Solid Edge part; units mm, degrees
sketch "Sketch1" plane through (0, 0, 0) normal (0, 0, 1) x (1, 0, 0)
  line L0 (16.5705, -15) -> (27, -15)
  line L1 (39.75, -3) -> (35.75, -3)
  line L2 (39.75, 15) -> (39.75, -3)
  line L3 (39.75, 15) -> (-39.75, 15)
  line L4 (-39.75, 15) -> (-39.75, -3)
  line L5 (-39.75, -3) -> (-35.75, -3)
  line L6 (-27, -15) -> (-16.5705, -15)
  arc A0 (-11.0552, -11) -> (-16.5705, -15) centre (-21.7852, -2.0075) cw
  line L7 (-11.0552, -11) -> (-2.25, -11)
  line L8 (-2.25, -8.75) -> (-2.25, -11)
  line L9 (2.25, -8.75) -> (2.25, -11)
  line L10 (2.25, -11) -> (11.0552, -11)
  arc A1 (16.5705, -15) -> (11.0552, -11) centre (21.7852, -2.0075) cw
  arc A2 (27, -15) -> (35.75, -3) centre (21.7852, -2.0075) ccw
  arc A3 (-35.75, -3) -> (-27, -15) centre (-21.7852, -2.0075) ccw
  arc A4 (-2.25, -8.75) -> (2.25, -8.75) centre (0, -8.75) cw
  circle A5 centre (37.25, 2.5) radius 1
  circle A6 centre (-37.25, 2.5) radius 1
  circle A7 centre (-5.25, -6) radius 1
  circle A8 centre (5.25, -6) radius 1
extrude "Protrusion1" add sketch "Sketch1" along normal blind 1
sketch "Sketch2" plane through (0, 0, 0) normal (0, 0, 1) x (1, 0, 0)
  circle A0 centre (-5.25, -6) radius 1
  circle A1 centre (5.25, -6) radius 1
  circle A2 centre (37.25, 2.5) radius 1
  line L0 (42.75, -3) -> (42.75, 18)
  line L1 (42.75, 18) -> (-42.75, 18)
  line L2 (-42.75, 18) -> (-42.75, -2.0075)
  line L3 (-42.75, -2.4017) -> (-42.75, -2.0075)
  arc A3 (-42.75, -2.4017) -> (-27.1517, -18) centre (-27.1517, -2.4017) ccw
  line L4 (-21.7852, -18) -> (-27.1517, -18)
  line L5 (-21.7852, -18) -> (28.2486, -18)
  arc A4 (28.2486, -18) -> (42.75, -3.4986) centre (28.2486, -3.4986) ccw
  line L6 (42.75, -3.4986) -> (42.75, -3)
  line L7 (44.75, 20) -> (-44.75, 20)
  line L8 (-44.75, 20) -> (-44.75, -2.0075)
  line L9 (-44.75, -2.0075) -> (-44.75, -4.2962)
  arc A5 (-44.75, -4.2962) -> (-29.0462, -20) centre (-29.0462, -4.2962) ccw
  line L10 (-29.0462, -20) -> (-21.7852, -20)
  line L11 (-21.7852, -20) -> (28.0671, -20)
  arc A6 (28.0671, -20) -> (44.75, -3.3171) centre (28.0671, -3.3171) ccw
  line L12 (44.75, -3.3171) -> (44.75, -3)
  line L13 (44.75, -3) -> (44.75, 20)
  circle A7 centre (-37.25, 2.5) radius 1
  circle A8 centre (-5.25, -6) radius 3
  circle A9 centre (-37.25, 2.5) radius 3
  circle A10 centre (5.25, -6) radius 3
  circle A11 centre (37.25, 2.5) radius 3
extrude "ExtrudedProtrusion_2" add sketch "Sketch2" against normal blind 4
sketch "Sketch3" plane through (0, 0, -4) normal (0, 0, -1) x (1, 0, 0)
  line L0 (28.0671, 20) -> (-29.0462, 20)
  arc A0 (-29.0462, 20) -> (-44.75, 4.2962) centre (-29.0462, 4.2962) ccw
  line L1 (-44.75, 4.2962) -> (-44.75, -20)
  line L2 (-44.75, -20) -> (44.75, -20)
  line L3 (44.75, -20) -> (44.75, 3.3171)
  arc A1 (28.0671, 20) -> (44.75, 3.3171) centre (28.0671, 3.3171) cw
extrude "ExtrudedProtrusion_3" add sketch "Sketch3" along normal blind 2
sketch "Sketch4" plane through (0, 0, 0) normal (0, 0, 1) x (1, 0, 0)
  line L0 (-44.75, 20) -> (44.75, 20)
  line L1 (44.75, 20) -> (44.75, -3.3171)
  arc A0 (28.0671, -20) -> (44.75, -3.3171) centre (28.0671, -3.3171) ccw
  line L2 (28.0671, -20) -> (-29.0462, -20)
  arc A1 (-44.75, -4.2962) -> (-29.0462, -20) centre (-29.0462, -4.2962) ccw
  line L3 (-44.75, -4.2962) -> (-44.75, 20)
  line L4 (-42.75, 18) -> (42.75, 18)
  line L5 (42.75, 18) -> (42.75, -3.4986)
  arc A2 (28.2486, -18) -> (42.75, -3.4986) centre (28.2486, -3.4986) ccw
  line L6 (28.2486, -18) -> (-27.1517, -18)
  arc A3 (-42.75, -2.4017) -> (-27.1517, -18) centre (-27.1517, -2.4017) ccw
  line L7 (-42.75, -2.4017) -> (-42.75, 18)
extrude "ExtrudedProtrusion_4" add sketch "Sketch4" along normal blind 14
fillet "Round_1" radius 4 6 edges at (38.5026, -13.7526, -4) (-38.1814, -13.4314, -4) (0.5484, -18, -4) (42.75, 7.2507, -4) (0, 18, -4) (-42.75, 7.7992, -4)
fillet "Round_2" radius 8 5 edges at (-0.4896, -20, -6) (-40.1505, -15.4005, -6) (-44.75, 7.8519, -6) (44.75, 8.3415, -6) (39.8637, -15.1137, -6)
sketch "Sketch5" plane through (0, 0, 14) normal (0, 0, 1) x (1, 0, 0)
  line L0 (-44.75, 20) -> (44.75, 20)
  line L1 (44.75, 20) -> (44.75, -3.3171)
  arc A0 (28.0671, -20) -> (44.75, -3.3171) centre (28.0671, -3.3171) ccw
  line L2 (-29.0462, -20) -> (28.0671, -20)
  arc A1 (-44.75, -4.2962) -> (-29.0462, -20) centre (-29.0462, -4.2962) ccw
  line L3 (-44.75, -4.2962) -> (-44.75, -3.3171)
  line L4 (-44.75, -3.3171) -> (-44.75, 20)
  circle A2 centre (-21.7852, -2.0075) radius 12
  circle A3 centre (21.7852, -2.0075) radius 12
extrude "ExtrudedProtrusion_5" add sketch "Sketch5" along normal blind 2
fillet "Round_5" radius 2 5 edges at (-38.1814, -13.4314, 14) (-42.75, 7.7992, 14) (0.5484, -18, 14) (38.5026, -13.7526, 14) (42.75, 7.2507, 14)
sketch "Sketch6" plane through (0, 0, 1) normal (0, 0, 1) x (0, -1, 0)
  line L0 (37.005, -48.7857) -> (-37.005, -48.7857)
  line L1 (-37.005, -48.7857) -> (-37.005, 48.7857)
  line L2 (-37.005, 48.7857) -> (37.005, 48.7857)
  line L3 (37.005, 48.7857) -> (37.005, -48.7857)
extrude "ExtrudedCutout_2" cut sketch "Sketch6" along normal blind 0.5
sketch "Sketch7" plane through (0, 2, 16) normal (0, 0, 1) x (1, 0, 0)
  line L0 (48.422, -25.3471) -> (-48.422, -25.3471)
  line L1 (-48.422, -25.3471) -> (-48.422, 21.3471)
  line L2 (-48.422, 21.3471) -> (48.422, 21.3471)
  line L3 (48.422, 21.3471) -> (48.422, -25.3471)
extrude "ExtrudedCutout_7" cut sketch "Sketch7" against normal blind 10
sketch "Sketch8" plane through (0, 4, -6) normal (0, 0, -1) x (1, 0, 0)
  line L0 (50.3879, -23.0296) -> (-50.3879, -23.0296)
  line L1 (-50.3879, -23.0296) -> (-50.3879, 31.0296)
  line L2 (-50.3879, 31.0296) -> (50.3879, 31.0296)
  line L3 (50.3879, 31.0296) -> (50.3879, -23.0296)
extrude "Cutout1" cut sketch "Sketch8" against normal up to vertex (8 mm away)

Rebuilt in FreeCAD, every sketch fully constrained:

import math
import FreeCAD as App
import Part
import Sketcher
Q = App.Units.Quantity


def edges_at(feature, points):
    """Names of the edges that pass closest to the given points."""
    edges = feature.Shape.Edges
    near = lambda p: min(range(len(edges)), key=lambda i: edges[i].distToShape(Part.Vertex(*p))[0])
    return sorted({f"Edge{near(p) + 1}" for p in points})

doc = App.newDocument("Part")
body = doc.addObject("PartDesign::Body", "Body")
body.AllowCompound = True

# Sketch on XY plane
sketch1 = body.newObject("Sketcher::SketchObject", "Sketch")
sketch1.AttachmentSupport = (doc.getObject("XY_Plane"), [""])
sketch1.MapMode = "FlatFace"
sketch1.addGeometry(Part.ArcOfCircle(Part.Circle(App.Vector(21.7852, -2.0075, 0), App.Vector(0, 0, 1), 13.999934), math.radians(-140.034608), math.radians(-111.868667)), False)
sketch1.addGeometry(Part.LineSegment(App.Vector(16.5705, -15, 0), App.Vector(27, -15, 0)), False)
sketch1.addGeometry(Part.ArcOfCircle(Part.Circle(App.Vector(21.7852, -2.0075, 0), App.Vector(0, 0, 1), 13.999971), math.radians(-68.130953), math.radians(-4.065264)), False)
sketch1.addGeometry(Part.LineSegment(App.Vector(35.75, -3, 0), App.Vector(39.75, -3, 0)), False)
sketch1.addGeometry(Part.LineSegment(App.Vector(39.75, -3, 0), App.Vector(39.75, 15, 0)), False)
sketch1.addGeometry(Part.LineSegment(App.Vector(39.75, 15, 0), App.Vector(-39.75, 15, 0)), False)
sketch1.addGeometry(Part.LineSegment(App.Vector(-39.75, 15, 0), App.Vector(-39.75, -3, 0)), False)
sketch1.addGeometry(Part.LineSegment(App.Vector(-39.75, -3, 0), App.Vector(-35.75, -3, 0)), False)
sketch1.addGeometry(Part.ArcOfCircle(Part.Circle(App.Vector(-21.7852, -2.0075, 0), App.Vector(0, 0, 1), 13.999927), math.radians(-175.934736), math.radians(-111.869047)), False)
sketch1.addGeometry(Part.LineSegment(App.Vector(-27, -15, 0), App.Vector(-16.5705, -15, 0)), False)
sketch1.addGeometry(Part.ArcOfCircle(Part.Circle(App.Vector(-21.7852, -2.0075, 0), App.Vector(0, 0, 1), 14.000025), math.radians(-68.131333), math.radians(-39.965392)), False)
sketch1.addGeometry(Part.LineSegment(App.Vector(-11.0552, -11, 0), App.Vector(-2.25, -11, 0)), False)
sketch1.addGeometry(Part.LineSegment(App.Vector(-2.25, -11, 0), App.Vector(-2.25, -8.75, 0)), False)
sketch1.addGeometry(Part.ArcOfCircle(Part.Circle(App.Vector(0, -8.75, 0), App.Vector(0, 0, 1), 2.25), math.radians(0), math.radians(180)), False)
sketch1.addGeometry(Part.LineSegment(App.Vector(2.25, -8.75, 0), App.Vector(2.25, -11, 0)), False)
sketch1.addGeometry(Part.LineSegment(App.Vector(2.25, -11, 0), App.Vector(11.0552, -11, 0)), False)
sketch1.addGeometry(Part.Circle(App.Vector(-5.25, -6, 0), App.Vector(0, 0, 1), 1), False)
sketch1.addGeometry(Part.Circle(App.Vector(5.25, -6, 0), App.Vector(0, 0, 1), 1), False)
sketch1.addGeometry(Part.Circle(App.Vector(-37.25, 2.5, 0), App.Vector(0, 0, 1), 1), False)
sketch1.addGeometry(Part.Circle(App.Vector(37.25, 2.5, 0), App.Vector(0, 0, 1), 1), False)
sketch1.addConstraint(Sketcher.Constraint("Coincident", 0, 2, 1, 1))
sketch1.addConstraint(Sketcher.Constraint("Coincident", 1, 2, 2, 1))
sketch1.addConstraint(Sketcher.Constraint("Coincident", 2, 2, 3, 1))
sketch1.addConstraint(Sketcher.Constraint("Coincident", 3, 2, 4, 1))
sketch1.addConstraint(Sketcher.Constraint("Coincident", 4, 2, 5, 1))
sketch1.addConstraint(Sketcher.Constraint("Coincident", 5, 2, 6, 1))
sketch1.addConstraint(Sketcher.Constraint("Coincident", 6, 2, 7, 1))
sketch1.addConstraint(Sketcher.Constraint("Coincident", 7, 2, 8, 1))
sketch1.addConstraint(Sketcher.Constraint("Coincident", 8, 2, 9, 1))
sketch1.addConstraint(Sketcher.Constraint("Coincident", 9, 2, 10, 1))
sketch1.addConstraint(Sketcher.Constraint("Coincident", 10, 2, 11, 1))
sketch1.addConstraint(Sketcher.Constraint("Coincident", 11, 2, 12, 1))
sketch1.addConstraint(Sketcher.Constraint("Tangent", 12, 2, 13, 2))
sketch1.addConstraint(Sketcher.Constraint("Tangent", 13, 1, 14, 1))
sketch1.addConstraint(Sketcher.Constraint("Coincident", 14, 2, 15, 1))
sketch1.addConstraint(Sketcher.Constraint("Coincident", 15, 2, 0, 1))
sketch1.addConstraint(Sketcher.Constraint("Horizontal", 1))
sketch1.addConstraint(Sketcher.Constraint("Horizontal", 3))
sketch1.addConstraint(Sketcher.Constraint("Vertical", 4))
sketch1.addConstraint(Sketcher.Constraint("Horizontal", 5))
sketch1.addConstraint(Sketcher.Constraint("Vertical", 6))
sketch1.addConstraint(Sketcher.Constraint("Horizontal", 7))
sketch1.addConstraint(Sketcher.Constraint("Horizontal", 9))
sketch1.addConstraint(Sketcher.Constraint("Horizontal", 11))
sketch1.addConstraint(Sketcher.Constraint("Vertical", 12))
sketch1.addConstraint(Sketcher.Constraint("Vertical", 14))
sketch1.addConstraint(Sketcher.Constraint("Horizontal", 15))
sketch1.addConstraint(Sketcher.Constraint("Coincident", 2, 3, 0, 3))
sketch1.addConstraint(Sketcher.Constraint("Coincident", 10, 3, 8, 3))
sketch1.addConstraint(Sketcher.Constraint("Equal", 0, 2))
sketch1.addConstraint(Sketcher.Constraint("Equal", 2, 8))
sketch1.addConstraint(Sketcher.Constraint("Equal", 8, 10))
sketch1.addConstraint(Sketcher.Constraint("Equal", 16, 17))
sketch1.addConstraint(Sketcher.Constraint("Equal", 17, 18))
sketch1.addConstraint(Sketcher.Constraint("Equal", 18, 19))
sketch1.addConstraint(Sketcher.Constraint("Symmetric", 0, 3, 8, 3, -2))
sketch1.addConstraint(Sketcher.Constraint("Symmetric", 16, 3, 17, 3, -2))
sketch1.addConstraint(Sketcher.Constraint("Symmetric", 18, 3, 19, 3, -2))
sketch1.addConstraint(Sketcher.Constraint("Symmetric", 3, 2, 6, 2, -2))
sketch1.addConstraint(Sketcher.Constraint("Symmetric", 11, 2, 14, 2, -2))
sketch1.addConstraint(Sketcher.Constraint("Horizontal", 1, 2, 8, 2))
sketch1.addConstraint(Sketcher.Constraint("Diameter", 16, Q("2 mm")))
sketch1.addConstraint(Sketcher.Constraint("Radius", 0, Q("14 mm")))
sketch1.addConstraint(Sketcher.Constraint("DistanceX", 3, 1, 3, 2, Q("4 mm")))
sketch1.addConstraint(Sketcher.Constraint("DistanceY", 4, 1, 4, 2, Q("18 mm")))
sketch1.addConstraint(Sketcher.Constraint("Radius", 13, Q("2.25 mm")))
sketch1.addConstraint(Sketcher.Constraint("DistanceX", 5, 2, 5, 1, Q("79.5 mm")))
sketch1.addConstraint(Sketcher.Constraint("DistanceY", 16, 3, -1, 1, Q("6 mm")))
sketch1.addConstraint(Sketcher.Constraint("DistanceY", 0, 2, -1, 1, Q("15 mm")))
sketch1.addConstraint(Sketcher.Constraint("DistanceX", -1, 1, 1, 2, Q("27 mm")))
sketch1.addConstraint(Sketcher.Constraint("DistanceY", 2, 2, -1, 1, Q("3 mm")))
sketch1.addConstraint(Sketcher.Constraint("DistanceY", 10, 2, -1, 1, Q("11 mm")))
sketch1.addConstraint(Sketcher.Constraint("DistanceX", 18, 3, 16, 3, Q("32 mm")))
sketch1.addConstraint(Sketcher.Constraint("DistanceX", 16, 3, 11, 2, Q("3 mm")))
sketch1.addConstraint(Sketcher.Constraint("DistanceY", 12, 1, 12, 2, Q("2.25 mm")))
sketch1.addConstraint(Sketcher.Constraint("DistanceY", -1, 1, 18, 3, Q("2.5 mm")))
pad1 = body.newObject("PartDesign::Pad", "Pad")
pad1.Profile = sketch1
pad1.Length = 1

# Sketch on XY plane
sketch2 = body.newObject("Sketcher::SketchObject", "Sketch001")
sketch2.AttachmentSupport = (doc.getObject("XY_Plane"), [""])
sketch2.MapMode = "FlatFace"
sketch2.addGeometry(Part.LineSegment(App.Vector(44.75, -3.3171, 0), App.Vector(44.75, 20, 0)), False)
sketch2.addGeometry(Part.LineSegment(App.Vector(44.75, 20, 0), App.Vector(-44.75, 20, 0)), False)
sketch2.addGeometry(Part.LineSegment(App.Vector(-44.75, 20, 0), App.Vector(-44.75, -4.2962, 0)), False)
sketch2.addGeometry(Part.ArcOfCircle(Part.Circle(App.Vector(-29.0462, -4.2962, 0), App.Vector(0, 0, 1), 15.7038), math.radians(180), math.radians(270)), False)
sketch2.addGeometry(Part.LineSegment(App.Vector(-29.0462, -20, 0), App.Vector(28.0671, -20, 0)), False)
sketch2.addGeometry(Part.ArcOfCircle(Part.Circle(App.Vector(28.0671, -3.3171, 0), App.Vector(0, 0, 1), 16.6829), math.radians(-90), math.radians(0)), False)
sketch2.addGeometry(Part.LineSegment(App.Vector(42.75, 18, 0), App.Vector(42.75, -3.4986, 0)), False)
sketch2.addGeometry(Part.ArcOfCircle(Part.Circle(App.Vector(28.2486, -3.4986, 0), App.Vector(0, 0, 1), 14.5014), math.radians(-90), math.radians(0)), False)
sketch2.addGeometry(Part.LineSegment(App.Vector(28.2486, -18, 0), App.Vector(-27.1517, -18, 0)), False)
sketch2.addGeometry(Part.ArcOfCircle(Part.Circle(App.Vector(-27.1517, -2.4017, 0), App.Vector(0, 0, 1), 15.5983), math.radians(180), math.radians(270)), False)
sketch2.addGeometry(Part.LineSegment(App.Vector(-42.75, -2.4017, 0), App.Vector(-42.75, 18, 0)), False)
sketch2.addGeometry(Part.LineSegment(App.Vector(-42.75, 18, 0), App.Vector(42.75, 18, 0)), False)
sketch2.addGeometry(Part.Circle(App.Vector(-5.25, -6, 0), App.Vector(0, 0, 1), 3), False)
sketch2.addGeometry(Part.Circle(App.Vector(-5.25, -6, 0), App.Vector(0, 0, 1), 1), False)
sketch2.addGeometry(Part.Circle(App.Vector(-37.25, 2.5, 0), App.Vector(0, 0, 1), 3), False)
sketch2.addGeometry(Part.Circle(App.Vector(-37.25, 2.5, 0), App.Vector(0, 0, 1), 1), False)
sketch2.addGeometry(Part.Circle(App.Vector(5.25, -6, 0), App.Vector(0, 0, 1), 3), False)
sketch2.addGeometry(Part.Circle(App.Vector(5.25, -6, 0), App.Vector(0, 0, 1), 1), False)
sketch2.addGeometry(Part.Circle(App.Vector(37.25, 2.5, 0), App.Vector(0, 0, 1), 3), False)
sketch2.addGeometry(Part.Circle(App.Vector(37.25, 2.5, 0), App.Vector(0, 0, 1), 1), False)
sketch2.addConstraint(Sketcher.Constraint("Coincident", 0, 2, 1, 1))
sketch2.addConstraint(Sketcher.Constraint("Coincident", 1, 2, 2, 1))
sketch2.addConstraint(Sketcher.Constraint("Tangent", 2, 2, 3, 1))
sketch2.addConstraint(Sketcher.Constraint("Tangent", 3, 2, 4, 1))
sketch2.addConstraint(Sketcher.Constraint("Tangent", 4, 2, 5, 1))
sketch2.addConstraint(Sketcher.Constraint("Tangent", 5, 2, 0, 1))
sketch2.addConstraint(Sketcher.Constraint("Tangent", 6, 2, 7, 2))
sketch2.addConstraint(Sketcher.Constraint("Tangent", 7, 1, 8, 1))
sketch2.addConstraint(Sketcher.Constraint("Tangent", 8, 2, 9, 2))
sketch2.addConstraint(Sketcher.Constraint("Tangent", 9, 1, 10, 1))
sketch2.addConstraint(Sketcher.Constraint("Coincident", 10, 2, 11, 1))
sketch2.addConstraint(Sketcher.Constraint("Coincident", 11, 2, 6, 1))
sketch2.addConstraint(Sketcher.Constraint("Vertical", 0))
sketch2.addConstraint(Sketcher.Constraint("Horizontal", 1))
sketch2.addConstraint(Sketcher.Constraint("Vertical", 2))
sketch2.addConstraint(Sketcher.Constraint("Horizontal", 4))
sketch2.addConstraint(Sketcher.Constraint("Vertical", 6))
sketch2.addConstraint(Sketcher.Constraint("Horizontal", 8))
sketch2.addConstraint(Sketcher.Constraint("Vertical", 10))
sketch2.addConstraint(Sketcher.Constraint("Horizontal", 11))
sketch2.addConstraint(Sketcher.Constraint("Coincident", 13, 3, 12, 3))
sketch2.addConstraint(Sketcher.Constraint("Coincident", 15, 3, 14, 3))
sketch2.addConstraint(Sketcher.Constraint("Coincident", 17, 3, 16, 3))
sketch2.addConstraint(Sketcher.Constraint("Coincident", 19, 3, 18, 3))
sketch2.addConstraint(Sketcher.Constraint("Equal", 12, 14))
sketch2.addConstraint(Sketcher.Constraint("Equal", 13, 15))
sketch2.addConstraint(Sketcher.Constraint("Equal", 14, 16))
sketch2.addConstraint(Sketcher.Constraint("Equal", 15, 17))
sketch2.addConstraint(Sketcher.Constraint("Equal", 16, 18))
sketch2.addConstraint(Sketcher.Constraint("Equal", 17, 19))
sketch2.addConstraint(Sketcher.Constraint("Symmetric", 12, 3, 16, 3, -2))
sketch2.addConstraint(Sketcher.Constraint("Symmetric", 14, 3, 18, 3, -2))
sketch2.addConstraint(Sketcher.Constraint("Diameter", 12, Q("6 mm")))
sketch2.addConstraint(Sketcher.Constraint("Diameter", 13, Q("2 mm")))
sketch2.addConstraint(Sketcher.Constraint("DistanceX", 1, 2, 1, 1, Q("89.5 mm")))
sketch2.addConstraint(Sketcher.Constraint("DistanceX", 11, 1, 11, 2, Q("85.5 mm")))
sketch2.addConstraint(Sketcher.Constraint("DistanceY", 12, 3, -1, 1, Q("6 mm")))
sketch2.addConstraint(Sketcher.Constraint("DistanceY", -1, 1, 0, 2, Q("20 mm")))
sketch2.addConstraint(Sketcher.Constraint("DistanceY", 3, 2, -1, 1, Q("20 mm")))
sketch2.addConstraint(Sketcher.Constraint("DistanceY", 7, 1, -1, 1, Q("18 mm")))
sketch2.addConstraint(Sketcher.Constraint("DistanceY", -1, 1, 10, 2, Q("18 mm")))
sketch2.addConstraint(Sketcher.Constraint("Radius", 5, Q("16.683 mm")))
sketch2.addConstraint(Sketcher.Constraint("DistanceX", 14, 3, 12, 3, Q("32 mm")))
sketch2.addConstraint(Sketcher.Constraint("DistanceX", 6, 2, 5, 2, Q("2 mm")))
sketch2.addConstraint(Sketcher.Constraint("DistanceY", -1, 1, 14, 3, Q("2.5 mm")))
sketch2.addConstraint(Sketcher.Constraint("Radius", 3, Q("15.7038 mm")))
sketch2.addConstraint(Sketcher.Constraint("Radius", 7, Q("14.5014 mm")))
sketch2.addConstraint(Sketcher.Constraint("Radius", 9, Q("15.5983 mm")))
sketch2.addConstraint(Sketcher.Constraint("DistanceX", 12, 3, 16, 3, Q("10.5 mm")))
sketch2.addConstraint(Sketcher.Constraint("DistanceX", 18, 3, 0, 2, Q("7.5 mm")))
pad2 = body.newObject("PartDesign::Pad", "Pad001")
pad2.Profile = sketch2
pad2.Length = 4
pad2.Reversed = True

# Sketch on XY plane
sketch3 = body.newObject("Sketcher::SketchObject", "Sketch002")
sketch3.AttachmentSupport = (doc.getObject("XY_Plane"), [""])
sketch3.MapMode = "FlatFace"
sketch3.AttachmentOffset = App.Placement(App.Vector(0, 0, -4), App.Rotation())
sketch3.addGeometry(Part.ArcOfCircle(Part.Circle(App.Vector(28.0671, -3.3171, 0), App.Vector(0, 0, 1), 16.6829), math.radians(-90), math.radians(0)), False)
sketch3.addGeometry(Part.LineSegment(App.Vector(28.0671, -20, 0), App.Vector(-29.0462, -20, 0)), False)
sketch3.addGeometry(Part.ArcOfCircle(Part.Circle(App.Vector(-29.0462, -4.2962, 0), App.Vector(0, 0, 1), 15.7038), math.radians(180), math.radians(270)), False)
sketch3.addGeometry(Part.LineSegment(App.Vector(-44.75, -4.2962, 0), App.Vector(-44.75, 20, 0)), False)
sketch3.addGeometry(Part.LineSegment(App.Vector(-44.75, 20, 0), App.Vector(44.75, 20, 0)), False)
sketch3.addGeometry(Part.LineSegment(App.Vector(44.75, 20, 0), App.Vector(44.75, -3.3171, 0)), False)
sketch3.addConstraint(Sketcher.Constraint("Tangent", 0, 1, 1, 1))
sketch3.addConstraint(Sketcher.Constraint("Tangent", 1, 2, 2, 2))
sketch3.addConstraint(Sketcher.Constraint("Tangent", 2, 1, 3, 1))
sketch3.addConstraint(Sketcher.Constraint("Coincident", 3, 2, 4, 1))
sketch3.addConstraint(Sketcher.Constraint("Coincident", 4, 2, 5, 1))
sketch3.addConstraint(Sketcher.Constraint("Tangent", 5, 2, 0, 2))
sketch3.addConstraint(Sketcher.Constraint("Horizontal", 1))
sketch3.addConstraint(Sketcher.Constraint("Vertical", 3))
sketch3.addConstraint(Sketcher.Constraint("Horizontal", 4))
sketch3.addConstraint(Sketcher.Constraint("Vertical", 5))
sketch3.addConstraint(Sketcher.Constraint("DistanceX", 4, 1, 4, 2, Q("89.5 mm")))
sketch3.addConstraint(Sketcher.Constraint("DistanceY", 0, 1, -1, 1, Q("20 mm")))
sketch3.addConstraint(Sketcher.Constraint("DistanceY", -1, 1, 3, 2, Q("20 mm")))
sketch3.addConstraint(Sketcher.Constraint("Radius", 0, Q("16.683 mm")))
sketch3.addConstraint(Sketcher.Constraint("Radius", 2, Q("15.7038 mm")))
sketch3.addConstraint(Sketcher.Constraint("DistanceX", 2, 1, -1, 1, Q("44.75 mm")))
pad3 = body.newObject("PartDesign::Pad", "Pad002")
pad3.Profile = sketch3
pad3.Length = 2
pad3.Reversed = True

# Sketch on XY plane
sketch4 = body.newObject("Sketcher::SketchObject", "Sketch003")
sketch4.AttachmentSupport = (doc.getObject("XY_Plane"), [""])
sketch4.MapMode = "FlatFace"
sketch4.addGeometry(Part.LineSegment(App.Vector(44.75, 20, 0), App.Vector(-44.75, 20, 0)), False)
sketch4.addGeometry(Part.LineSegment(App.Vector(-44.75, 20, 0), App.Vector(-44.75, -4.2962, 0)), False)
sketch4.addGeometry(Part.ArcOfCircle(Part.Circle(App.Vector(-29.0462, -4.2962, 0), App.Vector(0, 0, 1), 15.7038), math.radians(180), math.radians(270)), False)
sketch4.addGeometry(Part.LineSegment(App.Vector(-29.0462, -20, 0), App.Vector(28.0671, -20, 0)), False)
sketch4.addGeometry(Part.ArcOfCircle(Part.Circle(App.Vector(28.0671, -3.3171, 0), App.Vector(0, 0, 1), 16.6829), math.radians(-90), math.radians(0)), False)
sketch4.addGeometry(Part.LineSegment(App.Vector(44.75, -3.3171, 0), App.Vector(44.75, 20, 0)), False)
sketch4.addGeometry(Part.LineSegment(App.Vector(-42.75, -2.4017, 0), App.Vector(-42.75, 18, 0)), False)
sketch4.addGeometry(Part.LineSegment(App.Vector(-42.75, 18, 0), App.Vector(42.75, 18, 0)), False)
sketch4.addGeometry(Part.LineSegment(App.Vector(42.75, 18, 0), App.Vector(42.75, -3.4986, 0)), False)
sketch4.addGeometry(Part.ArcOfCircle(Part.Circle(App.Vector(28.2486, -3.4986, 0), App.Vector(0, 0, 1), 14.5014), math.radians(-90), math.radians(0)), False)
sketch4.addGeometry(Part.LineSegment(App.Vector(28.2486, -18, 0), App.Vector(-27.1517, -18, 0)), False)
sketch4.addGeometry(Part.ArcOfCircle(Part.Circle(App.Vector(-27.1517, -2.4017, 0), App.Vector(0, 0, 1), 15.5983), math.radians(180), math.radians(270)), False)
sketch4.addConstraint(Sketcher.Constraint("Coincident", 0, 2, 1, 1))
sketch4.addConstraint(Sketcher.Constraint("Tangent", 1, 2, 2, 1))
sketch4.addConstraint(Sketcher.Constraint("Tangent", 2, 2, 3, 1))
sketch4.addConstraint(Sketcher.Constraint("Tangent", 3, 2, 4, 1))
sketch4.addConstraint(Sketcher.Constraint("Tangent", 4, 2, 5, 1))
sketch4.addConstraint(Sketcher.Constraint("Coincident", 5, 2, 0, 1))
sketch4.addConstraint(Sketcher.Constraint("Coincident", 6, 2, 7, 1))
sketch4.addConstraint(Sketcher.Constraint("Coincident", 7, 2, 8, 1))
sketch4.addConstraint(Sketcher.Constraint("Tangent", 8, 2, 9, 2))
sketch4.addConstraint(Sketcher.Constraint("Tangent", 9, 1, 10, 1))
sketch4.addConstraint(Sketcher.Constraint("Tangent", 10, 2, 11, 2))
sketch4.addConstraint(Sketcher.Constraint("Tangent", 11, 1, 6, 1))
sketch4.addConstraint(Sketcher.Constraint("Horizontal", 0))
sketch4.addConstraint(Sketcher.Constraint("Vertical", 1))
sketch4.addConstraint(Sketcher.Constraint("Horizontal", 3))
sketch4.addConstraint(Sketcher.Constraint("Vertical", 5))
sketch4.addConstraint(Sketcher.Constraint("Vertical", 6))
sketch4.addConstraint(Sketcher.Constraint("Horizontal", 7))
sketch4.addConstraint(Sketcher.Constraint("Vertical", 8))
sketch4.addConstraint(Sketcher.Constraint("Horizontal", 10))
sketch4.addConstraint(Sketcher.Constraint("DistanceX", 0, 2, 0, 1, Q("89.5 mm")))
sketch4.addConstraint(Sketcher.Constraint("DistanceX", 7, 1, 7, 2, Q("85.5 mm")))
sketch4.addConstraint(Sketcher.Constraint("DistanceY", -1, 1, 0, 2, Q("20 mm")))
sketch4.addConstraint(Sketcher.Constraint("DistanceY", 2, 2, -1, 1, Q("20 mm")))
sketch4.addConstraint(Sketcher.Constraint("DistanceY", -1, 1, 6, 2, Q("18 mm")))
sketch4.addConstraint(Sketcher.Constraint("DistanceY", 9, 1, -1, 1, Q("18 mm")))
sketch4.addConstraint(Sketcher.Constraint("Radius", 4, Q("16.683 mm")))
sketch4.addConstraint(Sketcher.Constraint("DistanceX", 0, 2, 6, 2, Q("2 mm")))
sketch4.addConstraint(Sketcher.Constraint("Radius", 2, Q("15.7038 mm")))
sketch4.addConstraint(Sketcher.Constraint("Radius", 9, Q("14.5014 mm")))
sketch4.addConstraint(Sketcher.Constraint("Radius", 11, Q("15.5983 mm")))
sketch4.addConstraint(Sketcher.Constraint("DistanceX", 0, 2, -1, 1, Q("44.75 mm")))
pad4 = body.newObject("PartDesign::Pad", "Pad003")
pad4.Profile = sketch4
pad4.Length = 14
doc.recompute()

fillet = body.newObject("PartDesign::Fillet", "Fillet")
fillet.Base = (pad4, edges_at(pad4, [
    (38.503, -13.753, -4),
    (-38.181, -13.431, -4),
    (0.548, -18, -4),
    (42.75, 7.251, -4),
    (0, 18, -4),
    (-42.75, 7.799, -4),
]))
fillet.Radius = 4
doc.recompute()

fillet2 = body.newObject("PartDesign::Fillet", "Fillet001")
fillet2.Base = (fillet, edges_at(fillet, [
    (-0.49, -20, -6),
    (-40.151, -15.4, -6),
    (-44.75, 7.852, -6),
    (44.75, 8.341, -6),
    (39.864, -15.114, -6),
]))
fillet2.Radius = 8

# Sketch on XY plane
sketch5 = body.newObject("Sketcher::SketchObject", "Sketch004")
sketch5.AttachmentSupport = (doc.getObject("XY_Plane"), [""])
sketch5.MapMode = "FlatFace"
sketch5.AttachmentOffset = App.Placement(App.Vector(0, 0, 14), App.Rotation())
sketch5.addGeometry(Part.LineSegment(App.Vector(44.75, 20, 0), App.Vector(-44.75, 20, 0)), False)
sketch5.addGeometry(Part.LineSegment(App.Vector(-44.75, 20, 0), App.Vector(-44.75, -4.2962, 0)), False)
sketch5.addGeometry(Part.ArcOfCircle(Part.Circle(App.Vector(-29.0462, -4.2962, 0), App.Vector(0, 0, 1), 15.7038), math.radians(180), math.radians(270)), False)
sketch5.addGeometry(Part.LineSegment(App.Vector(-29.0462, -20, 0), App.Vector(28.0671, -20, 0)), False)
sketch5.addGeometry(Part.ArcOfCircle(Part.Circle(App.Vector(28.0671, -3.3171, 0), App.Vector(0, 0, 1), 16.6829), math.radians(-90), math.radians(0)), False)
sketch5.addGeometry(Part.LineSegment(App.Vector(44.75, -3.3171, 0), App.Vector(44.75, 20, 0)), False)
sketch5.addGeometry(Part.Circle(App.Vector(-21.7852, -2.0075, 0), App.Vector(0, 0, 1), 12), False)
sketch5.addGeometry(Part.Circle(App.Vector(21.7852, -2.0075, 0), App.Vector(0, 0, 1), 12), False)
sketch5.addConstraint(Sketcher.Constraint("Coincident", 0, 2, 1, 1))
sketch5.addConstraint(Sketcher.Constraint("Tangent", 1, 2, 2, 1))
sketch5.addConstraint(Sketcher.Constraint("Tangent", 2, 2, 3, 1))
sketch5.addConstraint(Sketcher.Constraint("Tangent", 3, 2, 4, 1))
sketch5.addConstraint(Sketcher.Constraint("Tangent", 4, 2, 5, 1))
sketch5.addConstraint(Sketcher.Constraint("Coincident", 5, 2, 0, 1))
sketch5.addConstraint(Sketcher.Constraint("Horizontal", 0))
sketch5.addConstraint(Sketcher.Constraint("Vertical", 1))
sketch5.addConstraint(Sketcher.Constraint("Horizontal", 3))
sketch5.addConstraint(Sketcher.Constraint("Vertical", 5))
sketch5.addConstraint(Sketcher.Constraint("Equal", 6, 7))
sketch5.addConstraint(Sketcher.Constraint("Symmetric", 6, 3, 7, 3, -2))
sketch5.addConstraint(Sketcher.Constraint("Diameter", 6, Q("24 mm")))
sketch5.addConstraint(Sketcher.Constraint("DistanceX", 0, 2, 0, 1, Q("89.5 mm")))
sketch5.addConstraint(Sketcher.Constraint("DistanceY", -1, 1, 0, 2, Q("20 mm")))
sketch5.addConstraint(Sketcher.Constraint("DistanceY", 2, 2, -1, 1, Q("20 mm")))
sketch5.addConstraint(Sketcher.Constraint("Radius", 4, Q("16.683 mm")))
sketch5.addConstraint(Sketcher.Constraint("Radius", 2, Q("15.7038 mm")))
sketch5.addConstraint(Sketcher.Constraint("DistanceX", 0, 2, -1, 1, Q("44.75 mm")))
sketch5.addConstraint(Sketcher.Constraint("DistanceX", 2, 3, 6, 3, Q("7.261 mm")))
sketch5.addConstraint(Sketcher.Constraint("DistanceY", 6, 3, -1, 1, Q("2.0075 mm")))
pad5 = body.newObject("PartDesign::Pad", "Pad004")
pad5.Profile = sketch5
pad5.Length = 2
doc.recompute()

fillet3 = body.newObject("PartDesign::Fillet", "Fillet002")
fillet3.Base = (pad5, edges_at(pad5, [
    (-38.181, -13.431, 14),
    (-42.75, 7.799, 14),
    (0.548, -18, 14),
    (38.503, -13.753, 14),
    (42.75, 7.251, 14),
]))
fillet3.Radius = 2

# Sketch on XY plane
sketch6 = body.newObject("Sketcher::SketchObject", "Sketch005")
sketch6.AttachmentSupport = (doc.getObject("XY_Plane"), [""])
sketch6.MapMode = "FlatFace"
sketch6.AttachmentOffset = App.Placement(App.Vector(0, 0, 1), App.Rotation())
sketch6.addGeometry(Part.LineSegment(App.Vector(-48.7857, 37.005, 0), App.Vector(-48.7857, -37.005, 0)), False)
sketch6.addGeometry(Part.LineSegment(App.Vector(-48.7857, -37.005, 0), App.Vector(48.7857, -37.005, 0)), False)
sketch6.addGeometry(Part.LineSegment(App.Vector(48.7857, -37.005, 0), App.Vector(48.7857, 37.005, 0)), False)
sketch6.addGeometry(Part.LineSegment(App.Vector(48.7857, 37.005, 0), App.Vector(-48.7857, 37.005, 0)), False)
sketch6.addConstraint(Sketcher.Constraint("Coincident", 0, 2, 1, 1))
sketch6.addConstraint(Sketcher.Constraint("Coincident", 1, 2, 2, 1))
sketch6.addConstraint(Sketcher.Constraint("Coincident", 2, 2, 3, 1))
sketch6.addConstraint(Sketcher.Constraint("Coincident", 3, 2, 0, 1))
sketch6.addConstraint(Sketcher.Constraint("Vertical", 0))
sketch6.addConstraint(Sketcher.Constraint("Horizontal", 1))
sketch6.addConstraint(Sketcher.Constraint("Vertical", 2))
sketch6.addConstraint(Sketcher.Constraint("Horizontal", 3))
sketch6.addConstraint(Sketcher.Constraint("Symmetric", 0, 2, 2, 2, -1, 1))
sketch6.addConstraint(Sketcher.Constraint("DistanceY", 0, 2, 0, 1, Q("74.01 mm")))
sketch6.addConstraint(Sketcher.Constraint("DistanceX", 1, 1, 1, 2, Q("97.5714 mm")))
pocket1 = body.newObject("PartDesign::Pocket", "Pocket")
pocket1.Profile = sketch6
pocket1.Length = 0.5
pocket1.Reversed = True

# Sketch on XY plane
sketch7 = body.newObject("Sketcher::SketchObject", "Sketch006")
sketch7.AttachmentSupport = (doc.getObject("XY_Plane"), [""])
sketch7.MapMode = "FlatFace"
sketch7.AttachmentOffset = App.Placement(App.Vector(0, 0, 16), App.Rotation())
sketch7.addGeometry(Part.LineSegment(App.Vector(-48.422, -23.3471, 0), App.Vector(48.422, -23.3471, 0)), False)
sketch7.addGeometry(Part.LineSegment(App.Vector(48.422, -23.3471, 0), App.Vector(48.422, 23.3471, 0)), False)
sketch7.addGeometry(Part.LineSegment(App.Vector(48.422, 23.3471, 0), App.Vector(-48.422, 23.3471, 0)), False)
sketch7.addGeometry(Part.LineSegment(App.Vector(-48.422, 23.3471, 0), App.Vector(-48.422, -23.3471, 0)), False)
sketch7.addConstraint(Sketcher.Constraint("Coincident", 0, 2, 1, 1))
sketch7.addConstraint(Sketcher.Constraint("Coincident", 1, 2, 2, 1))
sketch7.addConstraint(Sketcher.Constraint("Coincident", 2, 2, 3, 1))
sketch7.addConstraint(Sketcher.Constraint("Coincident", 3, 2, 0, 1))
sketch7.addConstraint(Sketcher.Constraint("Horizontal", 0))
sketch7.addConstraint(Sketcher.Constraint("Vertical", 1))
sketch7.addConstraint(Sketcher.Constraint("Horizontal", 2))
sketch7.addConstraint(Sketcher.Constraint("Vertical", 3))
sketch7.addConstraint(Sketcher.Constraint("Symmetric", 0, 2, 2, 2, -1, 1))
sketch7.addConstraint(Sketcher.Constraint("DistanceX", 0, 1, 0, 2, Q("96.844 mm")))
sketch7.addConstraint(Sketcher.Constraint("DistanceY", 1, 1, 1, 2, Q("46.6942 mm")))
pocket2 = body.newObject("PartDesign::Pocket", "Pocket001")
pocket2.Profile = sketch7
pocket2.Length = 10

# Sketch on XY plane
sketch8 = body.newObject("Sketcher::SketchObject", "Sketch007")
sketch8.AttachmentSupport = (doc.getObject("XY_Plane"), [""])
sketch8.MapMode = "FlatFace"
sketch8.AttachmentOffset = App.Placement(App.Vector(0, 0, -6), App.Rotation())
sketch8.addGeometry(Part.LineSegment(App.Vector(-50.3879, 27.0296, 0), App.Vector(50.3879, 27.0296, 0)), False)
sketch8.addGeometry(Part.LineSegment(App.Vector(50.3879, 27.0296, 0), App.Vector(50.3879, -27.0296, 0)), False)
sketch8.addGeometry(Part.LineSegment(App.Vector(50.3879, -27.0296, 0), App.Vector(-50.3879, -27.0296, 0)), False)
sketch8.addGeometry(Part.LineSegment(App.Vector(-50.3879, -27.0296, 0), App.Vector(-50.3879, 27.0296, 0)), False)
sketch8.addConstraint(Sketcher.Constraint("Coincident", 0, 2, 1, 1))
sketch8.addConstraint(Sketcher.Constraint("Coincident", 1, 2, 2, 1))
sketch8.addConstraint(Sketcher.Constraint("Coincident", 2, 2, 3, 1))
sketch8.addConstraint(Sketcher.Constraint("Coincident", 3, 2, 0, 1))
sketch8.addConstraint(Sketcher.Constraint("Horizontal", 0))
sketch8.addConstraint(Sketcher.Constraint("Vertical", 1))
sketch8.addConstraint(Sketcher.Constraint("Horizontal", 2))
sketch8.addConstraint(Sketcher.Constraint("Vertical", 3))
sketch8.addConstraint(Sketcher.Constraint("Symmetric", 0, 2, 2, 2, -1, 1))
sketch8.addConstraint(Sketcher.Constraint("DistanceX", 0, 1, 0, 2, Q("100.7758 mm")))
sketch8.addConstraint(Sketcher.Constraint("DistanceY", 1, 2, 1, 1, Q("54.0592 mm")))
pocket3 = body.newObject("PartDesign::Pocket", "Pocket002")
pocket3.Profile = sketch8
pocket3.Length = 8
pocket3.Reversed = True

doc.recompute()
